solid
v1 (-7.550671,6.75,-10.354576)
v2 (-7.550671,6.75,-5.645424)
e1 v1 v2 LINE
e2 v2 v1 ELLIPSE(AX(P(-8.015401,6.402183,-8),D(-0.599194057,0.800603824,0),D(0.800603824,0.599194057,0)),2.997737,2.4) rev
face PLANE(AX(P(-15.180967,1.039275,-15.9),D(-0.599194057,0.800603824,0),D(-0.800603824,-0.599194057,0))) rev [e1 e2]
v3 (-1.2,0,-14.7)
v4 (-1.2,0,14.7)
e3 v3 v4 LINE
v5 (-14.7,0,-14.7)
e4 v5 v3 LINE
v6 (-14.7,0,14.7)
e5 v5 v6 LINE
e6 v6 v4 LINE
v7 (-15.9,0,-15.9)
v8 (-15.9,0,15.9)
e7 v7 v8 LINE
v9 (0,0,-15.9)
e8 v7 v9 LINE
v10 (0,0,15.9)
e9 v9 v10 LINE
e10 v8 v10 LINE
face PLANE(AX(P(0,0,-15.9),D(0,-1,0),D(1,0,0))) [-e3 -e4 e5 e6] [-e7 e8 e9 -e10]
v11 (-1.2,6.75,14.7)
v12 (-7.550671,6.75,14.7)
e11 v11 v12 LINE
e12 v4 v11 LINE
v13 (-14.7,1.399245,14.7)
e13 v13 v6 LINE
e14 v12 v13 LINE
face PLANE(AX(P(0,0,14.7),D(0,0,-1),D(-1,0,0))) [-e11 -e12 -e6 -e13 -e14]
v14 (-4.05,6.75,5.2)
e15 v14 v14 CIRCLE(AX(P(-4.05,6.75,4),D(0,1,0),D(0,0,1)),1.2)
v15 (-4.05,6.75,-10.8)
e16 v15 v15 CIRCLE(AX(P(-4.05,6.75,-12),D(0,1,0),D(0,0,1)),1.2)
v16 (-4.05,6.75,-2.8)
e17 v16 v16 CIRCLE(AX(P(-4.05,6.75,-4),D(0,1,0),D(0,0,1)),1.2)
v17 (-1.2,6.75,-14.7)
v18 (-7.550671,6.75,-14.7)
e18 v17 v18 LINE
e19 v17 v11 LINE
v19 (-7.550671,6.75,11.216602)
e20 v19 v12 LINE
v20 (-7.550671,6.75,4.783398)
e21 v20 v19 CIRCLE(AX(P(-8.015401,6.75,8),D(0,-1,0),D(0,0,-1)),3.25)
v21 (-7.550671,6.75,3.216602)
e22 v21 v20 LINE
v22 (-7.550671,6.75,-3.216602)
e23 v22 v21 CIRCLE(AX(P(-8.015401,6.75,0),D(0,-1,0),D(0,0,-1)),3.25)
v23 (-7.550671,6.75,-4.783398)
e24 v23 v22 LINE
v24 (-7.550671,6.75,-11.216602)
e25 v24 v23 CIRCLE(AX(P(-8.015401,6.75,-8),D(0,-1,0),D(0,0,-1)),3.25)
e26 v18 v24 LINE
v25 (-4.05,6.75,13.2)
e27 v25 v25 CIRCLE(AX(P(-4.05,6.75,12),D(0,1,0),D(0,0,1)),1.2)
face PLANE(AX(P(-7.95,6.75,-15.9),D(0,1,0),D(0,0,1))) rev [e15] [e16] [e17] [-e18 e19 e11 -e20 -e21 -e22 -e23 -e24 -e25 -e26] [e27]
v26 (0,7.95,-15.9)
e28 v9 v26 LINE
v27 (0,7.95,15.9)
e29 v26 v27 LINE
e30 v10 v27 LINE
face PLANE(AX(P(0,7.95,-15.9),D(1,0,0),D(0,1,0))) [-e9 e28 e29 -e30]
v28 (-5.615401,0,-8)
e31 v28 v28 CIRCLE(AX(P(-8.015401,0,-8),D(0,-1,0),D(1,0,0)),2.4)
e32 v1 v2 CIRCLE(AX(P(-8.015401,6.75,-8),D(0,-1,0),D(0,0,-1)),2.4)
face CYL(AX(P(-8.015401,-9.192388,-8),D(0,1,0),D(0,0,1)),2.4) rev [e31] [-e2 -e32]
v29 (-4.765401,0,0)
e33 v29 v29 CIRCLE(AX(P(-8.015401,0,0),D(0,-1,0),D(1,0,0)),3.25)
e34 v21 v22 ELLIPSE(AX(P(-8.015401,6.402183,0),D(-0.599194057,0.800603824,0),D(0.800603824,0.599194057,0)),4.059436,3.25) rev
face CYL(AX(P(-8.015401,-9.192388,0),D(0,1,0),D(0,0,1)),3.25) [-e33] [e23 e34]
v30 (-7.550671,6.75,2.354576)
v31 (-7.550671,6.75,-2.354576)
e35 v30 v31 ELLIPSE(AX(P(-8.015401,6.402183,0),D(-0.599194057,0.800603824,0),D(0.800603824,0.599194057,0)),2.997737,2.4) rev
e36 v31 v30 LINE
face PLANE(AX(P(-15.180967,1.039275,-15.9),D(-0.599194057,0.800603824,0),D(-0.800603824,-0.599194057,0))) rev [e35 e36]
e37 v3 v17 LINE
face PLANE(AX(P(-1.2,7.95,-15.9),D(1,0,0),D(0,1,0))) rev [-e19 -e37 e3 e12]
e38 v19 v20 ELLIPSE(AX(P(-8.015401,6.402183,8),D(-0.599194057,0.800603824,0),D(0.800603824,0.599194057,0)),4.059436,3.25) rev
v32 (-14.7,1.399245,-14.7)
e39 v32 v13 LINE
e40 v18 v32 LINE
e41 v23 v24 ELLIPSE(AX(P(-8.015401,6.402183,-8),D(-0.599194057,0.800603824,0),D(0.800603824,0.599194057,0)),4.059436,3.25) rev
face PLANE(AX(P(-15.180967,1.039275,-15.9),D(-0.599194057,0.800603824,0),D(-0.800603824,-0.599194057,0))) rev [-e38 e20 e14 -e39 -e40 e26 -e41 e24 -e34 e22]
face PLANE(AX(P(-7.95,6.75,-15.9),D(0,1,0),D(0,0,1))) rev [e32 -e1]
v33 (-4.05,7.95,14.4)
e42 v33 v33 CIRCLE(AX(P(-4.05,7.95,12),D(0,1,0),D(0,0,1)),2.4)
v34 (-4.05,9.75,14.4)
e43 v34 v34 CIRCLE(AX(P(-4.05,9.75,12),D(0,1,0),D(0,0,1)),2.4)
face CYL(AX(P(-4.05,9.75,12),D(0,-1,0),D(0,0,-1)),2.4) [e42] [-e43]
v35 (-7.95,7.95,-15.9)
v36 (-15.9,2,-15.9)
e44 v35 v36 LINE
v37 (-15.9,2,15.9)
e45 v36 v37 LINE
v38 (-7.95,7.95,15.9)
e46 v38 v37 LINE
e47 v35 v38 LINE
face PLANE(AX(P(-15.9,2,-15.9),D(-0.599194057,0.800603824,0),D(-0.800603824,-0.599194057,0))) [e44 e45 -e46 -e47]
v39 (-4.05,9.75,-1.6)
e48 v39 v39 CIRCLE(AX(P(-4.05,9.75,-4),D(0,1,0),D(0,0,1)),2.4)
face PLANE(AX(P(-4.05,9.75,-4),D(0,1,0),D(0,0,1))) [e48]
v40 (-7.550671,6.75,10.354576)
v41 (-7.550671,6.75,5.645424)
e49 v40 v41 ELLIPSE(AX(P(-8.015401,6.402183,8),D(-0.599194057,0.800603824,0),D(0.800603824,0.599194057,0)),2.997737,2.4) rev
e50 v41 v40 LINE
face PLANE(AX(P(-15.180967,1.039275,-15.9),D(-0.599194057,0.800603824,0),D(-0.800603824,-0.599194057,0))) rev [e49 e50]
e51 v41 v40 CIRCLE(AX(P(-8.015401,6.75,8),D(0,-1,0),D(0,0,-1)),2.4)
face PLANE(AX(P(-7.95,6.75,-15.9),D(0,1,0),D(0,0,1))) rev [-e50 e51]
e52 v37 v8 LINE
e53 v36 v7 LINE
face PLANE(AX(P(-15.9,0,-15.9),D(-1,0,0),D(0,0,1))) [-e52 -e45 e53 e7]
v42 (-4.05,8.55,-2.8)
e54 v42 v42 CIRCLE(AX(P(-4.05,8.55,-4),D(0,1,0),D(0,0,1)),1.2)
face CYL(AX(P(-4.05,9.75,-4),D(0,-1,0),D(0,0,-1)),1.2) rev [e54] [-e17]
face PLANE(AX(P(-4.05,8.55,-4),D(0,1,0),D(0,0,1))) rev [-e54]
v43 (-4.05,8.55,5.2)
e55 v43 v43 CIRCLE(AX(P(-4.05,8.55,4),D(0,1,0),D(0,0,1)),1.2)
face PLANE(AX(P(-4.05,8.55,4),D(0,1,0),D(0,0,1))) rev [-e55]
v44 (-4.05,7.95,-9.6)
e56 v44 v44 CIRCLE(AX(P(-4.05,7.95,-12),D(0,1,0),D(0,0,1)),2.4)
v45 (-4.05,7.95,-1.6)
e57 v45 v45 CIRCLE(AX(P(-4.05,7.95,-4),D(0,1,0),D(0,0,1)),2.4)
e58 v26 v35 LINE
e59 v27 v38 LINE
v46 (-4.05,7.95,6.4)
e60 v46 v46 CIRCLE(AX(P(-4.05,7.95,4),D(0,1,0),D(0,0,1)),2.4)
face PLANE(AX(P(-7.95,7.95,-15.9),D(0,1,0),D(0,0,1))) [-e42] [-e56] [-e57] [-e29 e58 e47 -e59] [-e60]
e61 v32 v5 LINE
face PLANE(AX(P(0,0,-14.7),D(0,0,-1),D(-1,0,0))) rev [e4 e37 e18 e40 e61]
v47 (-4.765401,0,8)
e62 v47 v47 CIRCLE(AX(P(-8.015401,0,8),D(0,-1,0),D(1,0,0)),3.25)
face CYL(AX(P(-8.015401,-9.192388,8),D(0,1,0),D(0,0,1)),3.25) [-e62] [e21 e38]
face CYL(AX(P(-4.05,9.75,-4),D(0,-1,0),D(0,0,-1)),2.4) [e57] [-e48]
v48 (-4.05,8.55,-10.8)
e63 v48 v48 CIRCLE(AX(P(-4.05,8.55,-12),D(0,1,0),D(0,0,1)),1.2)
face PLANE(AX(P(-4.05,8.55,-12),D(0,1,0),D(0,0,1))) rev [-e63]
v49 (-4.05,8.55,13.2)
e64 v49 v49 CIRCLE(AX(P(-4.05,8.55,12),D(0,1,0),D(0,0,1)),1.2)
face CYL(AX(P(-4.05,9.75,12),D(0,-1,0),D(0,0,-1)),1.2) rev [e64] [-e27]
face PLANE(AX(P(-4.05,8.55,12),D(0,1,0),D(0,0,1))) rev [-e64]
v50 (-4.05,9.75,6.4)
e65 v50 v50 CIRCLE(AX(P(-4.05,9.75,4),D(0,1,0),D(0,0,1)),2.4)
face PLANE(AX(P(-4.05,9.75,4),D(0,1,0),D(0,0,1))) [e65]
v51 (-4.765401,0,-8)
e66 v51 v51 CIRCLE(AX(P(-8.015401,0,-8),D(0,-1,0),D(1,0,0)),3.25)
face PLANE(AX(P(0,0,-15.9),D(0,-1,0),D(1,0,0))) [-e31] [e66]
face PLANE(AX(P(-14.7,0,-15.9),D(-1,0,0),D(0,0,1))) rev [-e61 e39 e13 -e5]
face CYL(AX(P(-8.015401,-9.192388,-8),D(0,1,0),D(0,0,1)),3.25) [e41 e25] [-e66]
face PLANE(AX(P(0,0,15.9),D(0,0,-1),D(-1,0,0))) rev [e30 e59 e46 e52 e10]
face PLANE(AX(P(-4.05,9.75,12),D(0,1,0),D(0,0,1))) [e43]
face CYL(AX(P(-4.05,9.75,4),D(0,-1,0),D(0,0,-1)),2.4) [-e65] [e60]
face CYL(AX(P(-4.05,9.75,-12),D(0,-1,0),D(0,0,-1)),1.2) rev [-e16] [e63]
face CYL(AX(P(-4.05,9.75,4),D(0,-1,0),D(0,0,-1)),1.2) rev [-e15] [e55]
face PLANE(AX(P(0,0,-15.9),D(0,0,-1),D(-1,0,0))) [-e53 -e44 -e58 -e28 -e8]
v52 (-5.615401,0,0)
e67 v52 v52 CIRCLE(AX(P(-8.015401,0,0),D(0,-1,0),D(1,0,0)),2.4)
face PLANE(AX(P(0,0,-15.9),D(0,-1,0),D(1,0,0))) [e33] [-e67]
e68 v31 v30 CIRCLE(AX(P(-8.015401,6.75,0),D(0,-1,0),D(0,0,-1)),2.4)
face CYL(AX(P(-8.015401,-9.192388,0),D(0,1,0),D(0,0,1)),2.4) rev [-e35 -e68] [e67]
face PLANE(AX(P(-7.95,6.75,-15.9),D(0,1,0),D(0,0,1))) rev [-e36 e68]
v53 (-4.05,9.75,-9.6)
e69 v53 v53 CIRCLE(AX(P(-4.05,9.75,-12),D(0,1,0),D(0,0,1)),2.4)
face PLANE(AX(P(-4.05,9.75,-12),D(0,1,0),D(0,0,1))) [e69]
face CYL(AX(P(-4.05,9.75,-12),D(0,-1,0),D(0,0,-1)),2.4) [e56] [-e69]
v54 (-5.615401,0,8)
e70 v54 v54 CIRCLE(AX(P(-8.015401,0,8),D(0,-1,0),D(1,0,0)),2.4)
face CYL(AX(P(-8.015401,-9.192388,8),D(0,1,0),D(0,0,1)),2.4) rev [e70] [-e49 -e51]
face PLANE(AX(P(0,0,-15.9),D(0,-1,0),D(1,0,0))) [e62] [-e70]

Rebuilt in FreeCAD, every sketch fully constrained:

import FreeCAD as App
import Part
import Sketcher

V = App.Vector


def faces_at(feature, points):
    """Names of the faces that lie closest to the given points."""
    faces = feature.Shape.Faces
    near = lambda p: min(range(len(faces)), key=lambda i: faces[i].distToShape(Part.Vertex(*p))[0])
    return sorted({f"Face{near(p) + 1}" for p in points})

doc = App.newDocument("Part")
params = doc.addObject("Spreadsheet::Sheet", "Params")
for row, (alias, value) in enumerate([
    ("sketch1_height", "2 mm"),
    ("sketch1_width", "15.9 mm"),
    ("sketch1_width2", "7.95 mm"),
    ("pad1_length", "31.8 mm"),
    ("sketch2_diameter", "4.8 mm"),
    ("pad2_length", "1.8 mm"),
    ("linearpattern_pitch", "8 mm"),
    ("thickness_wall", "1.2 mm"),
    ("sketch3_diameter", "6.5 mm"),
    ("sketch3_diameter2", "4.8 mm"),
    ("pad3_length", "6.75 mm"),
    ("linearpattern2_pitch", "8 mm"),
    ("linearpattern3_pitch", "8 mm"),
    ("sketch4_height", "31.8 mm"),
], start=1):
    params.set(f"A{row}", alias)
    params.set(f"B{row}", "=" + value)
    params.setAlias(f"B{row}", alias)

body = doc.addObject("PartDesign::Body", "Body")

sketch1 = body.newObject("Sketcher::SketchObject", "Sketch")
sketch1.AttachmentSupport = (doc.getObject("XY_Plane"), [""])
sketch1.MapMode = "FlatFace"
sketch1.addGeometry([
    Part.LineSegment(V(-15.9, 0, 0), V(0, 0, 0)),
    Part.LineSegment(V(0, 0, 0), V(0, 8, 0)),
    Part.LineSegment(V(0, 8, 0), V(-8, 8, 0)),
    Part.LineSegment(V(-8, 8, 0), V(-15.9, 2, 0)),
    Part.LineSegment(V(-15.9, 2, 0), V(-15.9, 0, 0)),
], False)
sketch1.addConstraint([
    Sketcher.Constraint("Coincident", 0, 2, 1, 1),
    Sketcher.Constraint("Coincident", 1, 2, 2, 1),
    Sketcher.Constraint("Coincident", 2, 2, 3, 1),
    Sketcher.Constraint("Coincident", 3, 2, 4, 1),
    Sketcher.Constraint("Coincident", 4, 2, 0, 1),
    Sketcher.Constraint("Horizontal", 0),
    Sketcher.Constraint("Vertical", 1),
    Sketcher.Constraint("Horizontal", 2),
    Sketcher.Constraint("Vertical", 4),
    Sketcher.Constraint("Coincident", 0, 2, -1, 1),
    Sketcher.Constraint("Equal", 2, 1),
    Sketcher.Constraint("DistanceY", 4, 2, 4, 1, 2.0),
    Sketcher.Constraint("DistanceX", 0, 1, 0, 2, 15.9),
    Sketcher.Constraint("DistanceX", 2, 2, 2, 1, 7.95),
])
sketch1.setExpression("Constraints[11]", "Params.sketch1_height")
sketch1.setExpression("Constraints[12]", "Params.sketch1_width")
sketch1.setExpression("Constraints[13]", "Params.sketch1_width2")
pad1 = body.newObject("PartDesign::Pad", "Pad")
pad1.Profile = sketch1
pad1.setExpression("Length", "Params.pad1_length")
pad1.Midplane = True

sketch2 = body.newObject("Sketcher::SketchObject", "Sketch001")
sketch2.AttachmentSupport = (doc.getObject("XZ_Plane"), [""])
sketch2.MapMode = "FlatFace"
sketch2.AttachmentOffset = App.Placement(V(0, 0, -7.95), App.Rotation())
sketch2.addGeometry(Part.Circle(V(-4, 12, 0), V(0, 0, 1), 2.4), False)
sketch2.addConstraint([
    Sketcher.Constraint("Diameter", 0, 4.8),
    Sketcher.Constraint("DistanceY", -1, 1, 0, 3, 12.0),
    Sketcher.Constraint("DistanceX", 0, 3, -1, 1, 4.05),
])
sketch2.setExpression("Constraints[0]", "Params.sketch2_diameter")
pad2 = body.newObject("PartDesign::Pad", "Pad001")
pad2.Profile = sketch2
pad2.setExpression("Length", "Params.pad2_length")
pad2.Reversed = True
doc.recompute()

linearpattern = body.newObject("PartDesign::LinearPattern", "LinearPattern")
linearpattern.Originals = [pad2]
linearpattern.Direction = (doc.getObject("Z_Axis"), [""])
linearpattern.Mode = "offset"
linearpattern.setExpression("Offset", "Params.linearpattern_pitch")
linearpattern.Occurrences = 4
linearpattern.Reversed = True
body.Tip = linearpattern
doc.recompute()

thickness = body.newObject("PartDesign::Thickness", "Thickness")
thickness.Base = (linearpattern, faces_at(linearpattern, [(-7.95, 0, 0)]))
thickness.setExpression("Value", "Params.thickness_wall")
thickness.Reversed = True
thickness.Join = "Intersection"

sketch3 = body.newObject("Sketcher::SketchObject", "Sketch002")
sketch3.AttachmentSupport = (doc.getObject("XZ_Plane"), [""])
sketch3.MapMode = "FlatFace"
sketch3.AttachmentOffset = App.Placement(V(0, 0, -6.75), App.Rotation())
sketch3.addGeometry([
    Part.Circle(V(-8, 0, 0), V(0, 0, 1), 3.2),
    Part.Circle(V(-8, 0, 0), V(0, 0, 1), 2.4),
], False)
sketch3.addConstraint([
    Sketcher.Constraint("Coincident", 1, 3, 0, 3),
    Sketcher.Constraint("PointOnObject", 0, 3, -1),
    Sketcher.Constraint("Diameter", 0, 6.5),
    Sketcher.Constraint("Diameter", 1, 4.8),
    Sketcher.Constraint("DistanceX", 0, 3, -1, 1, 8.015401),
])
sketch3.setExpression("Constraints[2]", "Params.sketch3_diameter")
sketch3.setExpression("Constraints[3]", "Params.sketch3_diameter2")
pad3 = body.newObject("PartDesign::Pad", "Pad002")
pad3.Profile = sketch3
pad3.setExpression("Length", "Params.pad3_length")
doc.recompute()

linearpattern2 = body.newObject("PartDesign::LinearPattern", "LinearPattern001")
linearpattern2.Originals = [pad3]
linearpattern2.Direction = (doc.getObject("Z_Axis"), [""])
linearpattern2.Mode = "offset"
linearpattern2.setExpression("Offset", "Params.linearpattern2_pitch")
linearpattern2.Occurrences = 2
linearpattern2.Reversed = True
body.Tip = linearpattern2
doc.recompute()

linearpattern3 = body.newObject("PartDesign::LinearPattern", "LinearPattern002")
linearpattern3.Originals = [pad3]
linearpattern3.Direction = (doc.getObject("Z_Axis"), [""])
linearpattern3.Mode = "offset"
linearpattern3.setExpression("Offset", "Params.linearpattern3_pitch")
linearpattern3.Occurrences = 2
body.Tip = linearpattern3

sketch4 = body.newObject("Sketcher::SketchObject", "Sketch003")
sketch4.Placement = App.Placement(V(-6.668067, 8.909434, 0), App.Rotation(V(0.800603824, 0.599194057, 0), V(0, 0, -1.000000001), V(-0.599194057, 0.800603824, 0), "ZXY"))
sketch4.addGeometry([
    Part.LineSegment(V(-12, 16, 0), V(-12, -16, 0)),
    Part.LineSegment(V(-12, -16, 0), V(-2, -16, 0)),
    Part.LineSegment(V(-2, -16, 0), V(-2, 16, 0)),
    Part.LineSegment(V(-2, 16, 0), V(-12, 16, 0)),
], False)
sketch4.addConstraint([
    Sketcher.Constraint("Coincident", 0, 2, 1, 1),
    Sketcher.Constraint("Coincident", 1, 2, 2, 1),
    Sketcher.Constraint("Coincident", 2, 2, 3, 1),
    Sketcher.Constraint("Coincident", 3, 2, 0, 1),
    Sketcher.Constraint("Vertical", 0),
    Sketcher.Constraint("Horizontal", 1),
    Sketcher.Constraint("Vertical", 2),
    Sketcher.Constraint("Horizontal", 3),
    Sketcher.Constraint("DistanceY", 0, 2, 0, 1, 31.8),
    Sketcher.Constraint("DistanceY", 0, 2, -1, 1, 15.9),
    Sketcher.Constraint("DistanceX", 1, 1, 1, 2, 9.930005),
    Sketcher.Constraint("DistanceX", 0, 2, -1, 1, 11.531213),
])
sketch4.setExpression("Constraints[8]", "Params.sketch4_height")
pocket1 = body.newObject("PartDesign::Pocket", "Pocket")
pocket1.Profile = sketch4
pocket1.Type = "ThroughAll"
pocket1.Reversed = True

doc.recompute()
